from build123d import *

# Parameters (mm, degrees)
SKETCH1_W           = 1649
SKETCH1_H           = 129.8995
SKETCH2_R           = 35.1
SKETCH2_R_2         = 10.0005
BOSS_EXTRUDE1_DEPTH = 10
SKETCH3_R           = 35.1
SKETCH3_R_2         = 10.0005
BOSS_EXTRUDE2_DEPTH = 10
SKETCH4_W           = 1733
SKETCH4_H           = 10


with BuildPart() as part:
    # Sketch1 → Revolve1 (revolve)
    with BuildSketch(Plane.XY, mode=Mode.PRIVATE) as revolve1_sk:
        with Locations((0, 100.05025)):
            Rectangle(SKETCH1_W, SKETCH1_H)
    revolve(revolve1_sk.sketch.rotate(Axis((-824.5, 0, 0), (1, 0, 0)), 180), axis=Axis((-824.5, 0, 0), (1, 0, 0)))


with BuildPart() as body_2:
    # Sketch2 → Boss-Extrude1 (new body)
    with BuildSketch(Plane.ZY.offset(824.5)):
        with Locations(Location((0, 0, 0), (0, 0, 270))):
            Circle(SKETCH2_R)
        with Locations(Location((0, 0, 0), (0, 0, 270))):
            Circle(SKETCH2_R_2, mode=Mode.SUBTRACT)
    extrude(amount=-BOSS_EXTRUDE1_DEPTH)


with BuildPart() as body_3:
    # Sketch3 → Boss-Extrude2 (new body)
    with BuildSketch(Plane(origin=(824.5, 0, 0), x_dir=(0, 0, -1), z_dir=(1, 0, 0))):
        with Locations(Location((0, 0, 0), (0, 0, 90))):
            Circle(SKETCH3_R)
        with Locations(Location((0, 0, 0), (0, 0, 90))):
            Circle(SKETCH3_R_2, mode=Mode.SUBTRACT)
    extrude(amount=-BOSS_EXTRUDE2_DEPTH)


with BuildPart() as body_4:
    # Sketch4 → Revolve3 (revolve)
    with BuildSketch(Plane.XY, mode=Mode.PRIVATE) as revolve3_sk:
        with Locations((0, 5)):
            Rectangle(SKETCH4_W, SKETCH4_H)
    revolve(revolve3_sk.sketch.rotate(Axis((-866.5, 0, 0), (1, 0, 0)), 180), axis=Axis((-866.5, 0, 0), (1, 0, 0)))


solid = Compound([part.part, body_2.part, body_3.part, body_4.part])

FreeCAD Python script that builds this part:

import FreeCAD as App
import Part
import Sketcher

V = App.Vector


def add_polygon(sketch, points):
    """Adds a closed chain of lines whose ends are joined by coincident constraints."""
    first, n = sketch.GeometryCount, len(points)
    for a, b in zip(points, points[1:] + points[:1]):
        sketch.addGeometry(Part.LineSegment(App.Vector(*a, 0), App.Vector(*b, 0)), False)
    for i in range(n):
        sketch.addConstraint(Sketcher.Constraint("Coincident", first + i, 2, first + (i + 1) % n, 1))

doc = App.newDocument("Part")
body = doc.addObject("PartDesign::Body", "Body")

sketch1 = doc.addObject("Sketcher::SketchObject", "Sketch")
body.addObject(sketch1)
sketch1.AttachmentSupport = (doc.XY_Plane, [""])
sketch1.MapMode = "FlatFace"
add_polygon(sketch1, [(-824, 165), (-824, 35), (824, 35), (824, 165)])
sketch1.addConstraint(Sketcher.Constraint("Vertical", 0))
sketch1.addConstraint(Sketcher.Constraint("Horizontal", 1))
sketch1.addConstraint(Sketcher.Constraint("Vertical", 2))
sketch1.addConstraint(Sketcher.Constraint("Horizontal", 3))
sketch1.addConstraint(Sketcher.Constraint("DistanceX", 1, 1, 1, 2, 1649.0))
sketch1.addConstraint(Sketcher.Constraint("DistanceY", -1, 1, 2, 2, 165.0))
sketch1.addConstraint(Sketcher.Constraint("DistanceX", 0, 2, -1, 1, 824.5))
sketch1.addConstraint(Sketcher.Constraint("DistanceY", 0, 2, 0, 1, 129.8995))
revolution = doc.addObject("PartDesign::Revolution", "Revolution")
body.addObject(revolution)
revolution.Profile = sketch1
revolution.ReferenceAxis = (sketch1, ["H_Axis"])
revolution.Angle = 360
body2 = doc.addObject("PartDesign::Body", "Body001")

sketch2 = doc.addObject("Sketcher::SketchObject", "Sketch001")
body2.addObject(sketch2)
sketch2.AttachmentSupport = (doc.getObject("YZ_Plane001"), [""])
sketch2.MapMode = "FlatFace"
sketch2.AttachmentOffset = App.Placement(V(0, 0, -824.5), App.Rotation())
sketch2.addGeometry(Part.Circle(V(0, 0, 0), V(0, 0, 1), 35), False)
sketch2.addGeometry(Part.Circle(V(0, 0, 0), V(0, 0, 1), 10), False)
sketch2.addConstraint(Sketcher.Constraint("Coincident", 0, 3, -1, 1))
sketch2.addConstraint(Sketcher.Constraint("Coincident", 1, 3, -1, 1))
sketch2.addConstraint(Sketcher.Constraint("Diameter", 0, 70.2))
sketch2.addConstraint(Sketcher.Constraint("Diameter", 1, 20.001))
pad1 = doc.addObject("PartDesign::Pad", "Pad")
body2.addObject(pad1)
pad1.Profile = sketch2
pad1.Length = 10
body3 = doc.addObject("PartDesign::Body", "Body002")

sketch3 = doc.addObject("Sketcher::SketchObject", "Sketch002")
body3.addObject(sketch3)
sketch3.AttachmentSupport = (doc.getObject("YZ_Plane002"), [""])
sketch3.MapMode = "FlatFace"
sketch3.AttachmentOffset = App.Placement(V(0, 0, 824.5), App.Rotation())
sketch3.addGeometry(Part.Circle(V(0, 0, 0), V(0, 0, 1), 35), False)
sketch3.addGeometry(Part.Circle(V(0, 0, 0), V(0, 0, 1), 10), False)
sketch3.addConstraint(Sketcher.Constraint("Coincident", 0, 3, -1, 1))
sketch3.addConstraint(Sketcher.Constraint("Coincident", 1, 3, -1, 1))
sketch3.addConstraint(Sketcher.Constraint("Diameter", 0, 70.2))
sketch3.addConstraint(Sketcher.Constraint("Diameter", 1, 20.001))
pad2 = doc.addObject("PartDesign::Pad", "Pad001")
body3.addObject(pad2)
pad2.Profile = sketch3
pad2.Length = 10
pad2.Reversed = True
body4 = doc.addObject("PartDesign::Body", "Body003")

sketch4 = doc.addObject("Sketcher::SketchObject", "Sketch003")
body4.addObject(sketch4)
sketch4.AttachmentSupport = (doc.getObject("XY_Plane003"), [""])
sketch4.MapMode = "FlatFace"
add_polygon(sketch4, [(-866, 10), (-866, 0), (866, 0), (866, 10)])
sketch4.addConstraint(Sketcher.Constraint("Vertical", 0))
sketch4.addConstraint(Sketcher.Constraint("Horizontal", 1))
sketch4.addConstraint(Sketcher.Constraint("Vertical", 2))
sketch4.addConstraint(Sketcher.Constraint("Horizontal", 3))
sketch4.addConstraint(Sketcher.Constraint("Symmetric", 0, 2, 1, 2, -1, 1))
sketch4.addConstraint(Sketcher.Constraint("DistanceX", 1, 1, 1, 2, 1733.0))
sketch4.addConstraint(Sketcher.Constraint("DistanceY", 0, 2, 0, 1, 10.0))
revolution2 = doc.addObject("PartDesign::Revolution", "Revolution001")
body4.addObject(revolution2)
revolution2.Profile = sketch4
revolution2.ReferenceAxis = (sketch4, ["H_Axis"])
revolution2.Angle = 360

doc.recompute()
